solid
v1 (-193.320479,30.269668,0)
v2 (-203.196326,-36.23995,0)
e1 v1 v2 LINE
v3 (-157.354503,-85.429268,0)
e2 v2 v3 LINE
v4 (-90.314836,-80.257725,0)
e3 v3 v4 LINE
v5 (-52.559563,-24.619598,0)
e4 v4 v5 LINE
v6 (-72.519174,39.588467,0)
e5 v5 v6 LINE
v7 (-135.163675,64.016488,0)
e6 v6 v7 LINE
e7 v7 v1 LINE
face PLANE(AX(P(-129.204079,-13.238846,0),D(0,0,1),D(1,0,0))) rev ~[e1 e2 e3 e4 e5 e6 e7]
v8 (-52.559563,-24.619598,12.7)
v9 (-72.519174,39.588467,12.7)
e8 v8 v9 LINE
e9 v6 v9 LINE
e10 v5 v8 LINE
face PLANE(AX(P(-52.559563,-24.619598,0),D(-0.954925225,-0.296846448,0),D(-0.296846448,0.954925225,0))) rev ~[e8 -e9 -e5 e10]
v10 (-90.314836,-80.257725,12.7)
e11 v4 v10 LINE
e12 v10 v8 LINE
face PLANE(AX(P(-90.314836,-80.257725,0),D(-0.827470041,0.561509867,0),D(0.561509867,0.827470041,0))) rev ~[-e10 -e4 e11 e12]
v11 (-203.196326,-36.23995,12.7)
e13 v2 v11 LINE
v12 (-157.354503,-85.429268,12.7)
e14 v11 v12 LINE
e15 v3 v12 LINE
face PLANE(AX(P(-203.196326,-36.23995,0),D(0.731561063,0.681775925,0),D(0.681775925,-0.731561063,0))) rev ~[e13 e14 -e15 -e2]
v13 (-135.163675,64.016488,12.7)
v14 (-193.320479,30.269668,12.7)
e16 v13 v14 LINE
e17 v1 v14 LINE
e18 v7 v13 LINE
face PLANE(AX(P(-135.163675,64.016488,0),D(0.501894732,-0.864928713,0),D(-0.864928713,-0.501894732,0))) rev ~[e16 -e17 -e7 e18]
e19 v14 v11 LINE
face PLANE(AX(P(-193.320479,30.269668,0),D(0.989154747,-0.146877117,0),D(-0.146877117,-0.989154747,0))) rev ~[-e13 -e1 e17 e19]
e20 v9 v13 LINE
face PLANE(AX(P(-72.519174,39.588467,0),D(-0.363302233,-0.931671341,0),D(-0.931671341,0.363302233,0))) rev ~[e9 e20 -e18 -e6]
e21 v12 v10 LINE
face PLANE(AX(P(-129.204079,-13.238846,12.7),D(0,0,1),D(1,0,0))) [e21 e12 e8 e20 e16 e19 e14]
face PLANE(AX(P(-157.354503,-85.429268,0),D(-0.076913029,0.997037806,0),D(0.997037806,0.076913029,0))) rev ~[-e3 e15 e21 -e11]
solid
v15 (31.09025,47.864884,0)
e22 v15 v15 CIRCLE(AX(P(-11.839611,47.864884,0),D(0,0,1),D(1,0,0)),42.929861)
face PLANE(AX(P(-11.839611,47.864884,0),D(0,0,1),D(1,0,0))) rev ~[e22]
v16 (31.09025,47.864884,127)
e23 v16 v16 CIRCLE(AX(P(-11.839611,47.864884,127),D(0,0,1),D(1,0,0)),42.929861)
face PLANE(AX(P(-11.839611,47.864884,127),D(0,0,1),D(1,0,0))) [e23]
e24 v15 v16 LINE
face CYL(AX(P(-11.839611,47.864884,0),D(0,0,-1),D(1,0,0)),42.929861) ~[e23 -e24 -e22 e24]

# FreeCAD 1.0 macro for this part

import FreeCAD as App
import Part
import Sketcher
from FreeCAD import Vector
Q = App.Units.Quantity


def add_polygon(sketch, points):
    """Adds a closed chain of lines whose ends are joined by coincident constraints."""
    first, n = sketch.GeometryCount, len(points)
    for a, b in zip(points, points[1:] + points[:1]):
        sketch.addGeometry(Part.LineSegment(App.Vector(*a, 0), App.Vector(*b, 0)), False)
    for i in range(n):
        sketch.addConstraint(Sketcher.Constraint("Coincident", first + i, 2, first + (i + 1) % n, 1))

doc = App.newDocument("Part")
body = doc.addObject("PartDesign::Body", "Body")

sketch1 = body.newObject("Sketcher::SketchObject", "Sketch")
sketch1.AttachmentSupport = (doc.getObject("XY_Plane"), [""])
sketch1.MapMode = "FlatFace"
add_polygon(sketch1, [(-53, -25), (-73, 40), (-135, 64), (-193, 30), (-203, -36), (-157, -85), (-90, -80)])
sketch1.addConstraint([
    Sketcher.Constraint("Equal", 0, 1),
    Sketcher.Constraint("Equal", 1, 2),
    Sketcher.Constraint("Equal", 2, 3),
    Sketcher.Constraint("Equal", 3, 4),
    Sketcher.Constraint("Equal", 4, 5),
    Sketcher.Constraint("Equal", 5, 6),
    Sketcher.Constraint("DistanceY", 6, 2, -1, 1, Q("24.619598 mm")),
    Sketcher.Constraint("DistanceX", 1, 2, 0, 2, Q("62.644501 mm")),
    Sketcher.Constraint("DistanceY", 2, 2, 0, 2, Q("9.318799 mm")),
    Sketcher.Constraint("Distance", 0, Q("67.238841 mm")),
    Sketcher.Constraint("DistanceX", 2, 2, -1, 1, Q("193.320479 mm")),
    Sketcher.Constraint("DistanceY", 3, 2, -1, 1, Q("36.23995 mm")),
    Sketcher.Constraint("DistanceY", 3, 2, 2, 2, Q("66.509618 mm")),
    Sketcher.Constraint("DistanceX", 4, 2, 0, 2, Q("84.835329 mm")),
])
pad1 = body.newObject("PartDesign::Pad", "Pad")
pad1.Profile = sketch1
pad1.Length = Q("0.5 in")
body2 = doc.addObject("PartDesign::Body", "Body001")

sketch2 = body2.newObject("Sketcher::SketchObject", "Sketch001")
sketch2.AttachmentSupport = (doc.getObject("XY_Plane001"), [""])
sketch2.MapMode = "FlatFace"
sketch2.addGeometry(Part.Circle(Vector(-12, 48, 0), Vector(0, 0, 1), 43), False)
sketch2.addConstraint([
    Sketcher.Constraint("Diameter", 0, Q("85.859722 mm")),
    Sketcher.Constraint("DistanceX", 0, 3, -1, 1, Q("11.839611 mm")),
    Sketcher.Constraint("DistanceY", -1, 1, 0, 3, Q("47.864884 mm")),
])
pad2 = body2.newObject("PartDesign::Pad", "Pad001")
pad2.Profile = sketch2
pad2.Length = Q("5 in")

doc.recompute()
